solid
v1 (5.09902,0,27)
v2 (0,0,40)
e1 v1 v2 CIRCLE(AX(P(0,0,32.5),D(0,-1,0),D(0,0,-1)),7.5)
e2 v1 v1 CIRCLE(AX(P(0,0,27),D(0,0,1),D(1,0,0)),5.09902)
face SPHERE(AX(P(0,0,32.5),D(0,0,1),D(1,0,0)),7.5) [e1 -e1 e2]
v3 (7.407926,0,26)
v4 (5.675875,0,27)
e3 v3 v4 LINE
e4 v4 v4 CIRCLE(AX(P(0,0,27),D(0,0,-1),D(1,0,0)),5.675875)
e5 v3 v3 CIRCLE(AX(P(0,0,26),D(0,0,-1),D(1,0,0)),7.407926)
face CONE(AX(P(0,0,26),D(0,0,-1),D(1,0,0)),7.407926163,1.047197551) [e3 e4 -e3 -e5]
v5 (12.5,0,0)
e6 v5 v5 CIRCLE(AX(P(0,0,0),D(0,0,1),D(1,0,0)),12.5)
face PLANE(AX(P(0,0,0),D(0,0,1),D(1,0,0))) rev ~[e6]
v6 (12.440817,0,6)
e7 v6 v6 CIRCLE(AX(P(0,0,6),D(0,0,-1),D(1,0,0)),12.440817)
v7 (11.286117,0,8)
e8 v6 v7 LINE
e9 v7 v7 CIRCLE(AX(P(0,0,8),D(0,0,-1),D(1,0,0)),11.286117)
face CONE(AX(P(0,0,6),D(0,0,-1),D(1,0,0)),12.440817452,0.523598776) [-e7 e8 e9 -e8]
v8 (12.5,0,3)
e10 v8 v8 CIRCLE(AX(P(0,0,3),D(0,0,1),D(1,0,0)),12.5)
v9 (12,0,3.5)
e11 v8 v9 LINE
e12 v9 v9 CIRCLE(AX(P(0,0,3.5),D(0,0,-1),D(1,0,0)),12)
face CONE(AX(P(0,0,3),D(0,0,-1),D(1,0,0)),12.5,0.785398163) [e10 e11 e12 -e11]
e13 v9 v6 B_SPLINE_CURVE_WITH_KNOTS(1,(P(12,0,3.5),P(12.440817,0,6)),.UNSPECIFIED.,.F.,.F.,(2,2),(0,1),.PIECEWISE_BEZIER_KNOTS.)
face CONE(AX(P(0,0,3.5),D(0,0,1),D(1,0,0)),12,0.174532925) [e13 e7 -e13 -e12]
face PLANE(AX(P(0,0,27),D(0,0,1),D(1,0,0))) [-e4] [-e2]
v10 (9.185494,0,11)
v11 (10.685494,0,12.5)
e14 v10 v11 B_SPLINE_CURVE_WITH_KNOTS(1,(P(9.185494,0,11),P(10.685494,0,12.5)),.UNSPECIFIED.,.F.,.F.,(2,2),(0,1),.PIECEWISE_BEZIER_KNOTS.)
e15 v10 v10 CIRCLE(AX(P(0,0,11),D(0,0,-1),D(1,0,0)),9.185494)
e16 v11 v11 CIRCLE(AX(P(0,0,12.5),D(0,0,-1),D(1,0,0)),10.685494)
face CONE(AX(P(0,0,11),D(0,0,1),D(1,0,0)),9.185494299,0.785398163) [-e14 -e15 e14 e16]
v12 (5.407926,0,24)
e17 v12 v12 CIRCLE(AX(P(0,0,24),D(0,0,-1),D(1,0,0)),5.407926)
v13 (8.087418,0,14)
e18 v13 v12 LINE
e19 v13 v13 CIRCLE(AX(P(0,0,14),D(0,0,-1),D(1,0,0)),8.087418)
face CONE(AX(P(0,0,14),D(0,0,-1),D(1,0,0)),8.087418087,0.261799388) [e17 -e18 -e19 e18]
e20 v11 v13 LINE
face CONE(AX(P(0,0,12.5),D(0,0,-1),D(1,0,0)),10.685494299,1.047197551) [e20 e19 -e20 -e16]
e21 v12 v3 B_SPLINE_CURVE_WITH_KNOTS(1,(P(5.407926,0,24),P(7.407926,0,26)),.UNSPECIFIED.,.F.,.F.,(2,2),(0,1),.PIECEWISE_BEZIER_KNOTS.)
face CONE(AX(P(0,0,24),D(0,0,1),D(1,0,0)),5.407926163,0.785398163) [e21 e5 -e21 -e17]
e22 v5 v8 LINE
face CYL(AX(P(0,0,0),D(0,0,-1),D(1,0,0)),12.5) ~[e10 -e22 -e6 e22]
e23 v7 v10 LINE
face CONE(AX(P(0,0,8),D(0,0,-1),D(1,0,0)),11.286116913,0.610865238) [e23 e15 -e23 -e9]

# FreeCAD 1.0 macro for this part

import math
import FreeCAD as App
import Part
import Sketcher

V = App.Vector

doc = App.newDocument("Part")
body = doc.addObject("PartDesign::Body", "Body")

sketch1 = doc.addObject("Sketcher::SketchObject", "Sketch")
body.addObject(sketch1)
sketch1.AttachmentSupport = (doc.XY_Plane, [""])
sketch1.MapMode = "FlatFace"
sketch1.addGeometry(Part.Circle(V(0, 0, 0), V(0, 0, 1), 12), False)
sketch1.addConstraint([
    Sketcher.Constraint("Coincident", 0, 3, -1, 1),
    Sketcher.Constraint("Diameter", 0, 25.0),
])
pad1 = doc.addObject("PartDesign::Pad", "Pad")
body.addObject(pad1)
pad1.Profile = sketch1
pad1.Length = 3

sketch2 = doc.addObject("Sketcher::SketchObject", "Sketch001")
body.addObject(sketch2)
sketch2.AttachmentSupport = (doc.XY_Plane, [""])
sketch2.MapMode = "FlatFace"
sketch2.AttachmentOffset = App.Placement(V(0, 0, 3), App.Rotation())
sketch2.addGeometry(Part.Circle(V(0, 0, 0), V(0, 0, 1), 12), False)
sketch2.addConstraint([
    Sketcher.Constraint("Coincident", 0, 3, -1, 1),
    Sketcher.Constraint("Diameter", 0, 25.0),
])
pad2 = doc.addObject("PartDesign::Pad", "Pad001")
body.addObject(pad2)
pad2.Profile = sketch2
pad2.Length = 0.5
pad2.TaperAngle = -45

sketch3 = doc.addObject("Sketcher::SketchObject", "Sketch002")
body.addObject(sketch3)
sketch3.AttachmentSupport = (doc.XY_Plane, [""])
sketch3.MapMode = "FlatFace"
sketch3.AttachmentOffset = App.Placement(V(0, 0, 3.5), App.Rotation())
sketch3.addGeometry(Part.Circle(V(0, 0, 0), V(0, 0, 1), 12), False)
sketch3.addConstraint([
    Sketcher.Constraint("Coincident", 0, 3, -1, 1),
    Sketcher.Constraint("Diameter", 0, 24.0),
])
pad3 = doc.addObject("PartDesign::Pad", "Pad002")
body.addObject(pad3)
pad3.Profile = sketch3
pad3.Length = 2.5
pad3.TaperAngle = 10

sketch4 = doc.addObject("Sketcher::SketchObject", "Sketch003")
body.addObject(sketch4)
sketch4.AttachmentSupport = (doc.XY_Plane, [""])
sketch4.MapMode = "FlatFace"
sketch4.AttachmentOffset = App.Placement(V(0, 0, 6), App.Rotation())
sketch4.addGeometry(Part.Circle(V(0, 0, 0), V(0, 0, 1), 12), False)
sketch4.addConstraint([
    Sketcher.Constraint("Coincident", 0, 3, -1, 1),
    Sketcher.Constraint("Diameter", 0, 24.881635),
])
pad4 = doc.addObject("PartDesign::Pad", "Pad003")
body.addObject(pad4)
pad4.Profile = sketch4
pad4.Length = 2
pad4.TaperAngle = -30

sketch5 = doc.addObject("Sketcher::SketchObject", "Sketch004")
body.addObject(sketch5)
sketch5.AttachmentSupport = (doc.XY_Plane, [""])
sketch5.MapMode = "FlatFace"
sketch5.AttachmentOffset = App.Placement(V(0, 0, 8), App.Rotation())
sketch5.addGeometry(Part.Circle(V(0, 0, 0), V(0, 0, 1), 11), False)
sketch5.addConstraint([
    Sketcher.Constraint("Coincident", 0, 3, -1, 1),
    Sketcher.Constraint("Diameter", 0, 22.572234),
])
pad5 = doc.addObject("PartDesign::Pad", "Pad004")
body.addObject(pad5)
pad5.Profile = sketch5
pad5.Length = 3
pad5.TaperAngle = -35

sketch6 = doc.addObject("Sketcher::SketchObject", "Sketch005")
body.addObject(sketch6)
sketch6.AttachmentSupport = (doc.XY_Plane, [""])
sketch6.MapMode = "FlatFace"
sketch6.AttachmentOffset = App.Placement(V(0, 0, 11), App.Rotation())
sketch6.addGeometry(Part.Circle(V(0, 0, 0), V(0, 0, 1), 9), False)
sketch6.addConstraint([
    Sketcher.Constraint("Coincident", 0, 3, -1, 1),
    Sketcher.Constraint("Diameter", 0, 18.370989),
])
pad6 = doc.addObject("PartDesign::Pad", "Pad005")
body.addObject(pad6)
pad6.Profile = sketch6
pad6.Length = 1.5
pad6.TaperAngle = 45

sketch7 = doc.addObject("Sketcher::SketchObject", "Sketch006")
body.addObject(sketch7)
sketch7.AttachmentSupport = (doc.XY_Plane, [""])
sketch7.MapMode = "FlatFace"
sketch7.AttachmentOffset = App.Placement(V(0, 0, 12.5), App.Rotation())
sketch7.addGeometry(Part.Circle(V(0, 0, 0), V(0, 0, 1), 11), False)
sketch7.addConstraint([
    Sketcher.Constraint("Coincident", 0, 3, -1, 1),
    Sketcher.Constraint("Diameter", 0, 21.370989),
])
pad7 = doc.addObject("PartDesign::Pad", "Pad006")
body.addObject(pad7)
pad7.Profile = sketch7
pad7.Length = 1.5
pad7.TaperAngle = -60

sketch8 = doc.addObject("Sketcher::SketchObject", "Sketch007")
body.addObject(sketch8)
sketch8.AttachmentSupport = (doc.XY_Plane, [""])
sketch8.MapMode = "FlatFace"
sketch8.AttachmentOffset = App.Placement(V(0, 0, 14), App.Rotation())
sketch8.addGeometry(Part.Circle(V(0, 0, 0), V(0, 0, 1), 8), False)
sketch8.addConstraint([
    Sketcher.Constraint("Coincident", 0, 3, -1, 1),
    Sketcher.Constraint("Diameter", 0, 16.174836),
])
pad8 = doc.addObject("PartDesign::Pad", "Pad007")
body.addObject(pad8)
pad8.Profile = sketch8
pad8.Length = 10
pad8.TaperAngle = -15

sketch9 = doc.addObject("Sketcher::SketchObject", "Sketch008")
body.addObject(sketch9)
sketch9.AttachmentSupport = (doc.XY_Plane, [""])
sketch9.MapMode = "FlatFace"
sketch9.AttachmentOffset = App.Placement(V(0, 0, 24), App.Rotation())
sketch9.addGeometry(Part.Circle(V(0, 0, 0), V(0, 0, 1), 5), False)
sketch9.addConstraint([
    Sketcher.Constraint("Coincident", 0, 3, -1, 1),
    Sketcher.Constraint("Diameter", 0, 10.815852),
])
pad9 = doc.addObject("PartDesign::Pad", "Pad008")
body.addObject(pad9)
pad9.Profile = sketch9
pad9.Length = 2
pad9.TaperAngle = 45

sketch10 = doc.addObject("Sketcher::SketchObject", "Sketch009")
body.addObject(sketch10)
sketch10.AttachmentSupport = (doc.XY_Plane, [""])
sketch10.MapMode = "FlatFace"
sketch10.AttachmentOffset = App.Placement(V(0, 0, 26), App.Rotation())
sketch10.addGeometry(Part.Circle(V(0, 0, 0), V(0, 0, 1), 7), False)
sketch10.addConstraint([
    Sketcher.Constraint("Coincident", 0, 3, -1, 1),
    Sketcher.Constraint("Diameter", 0, 14.815852),
])
pad10 = doc.addObject("PartDesign::Pad", "Pad009")
body.addObject(pad10)
pad10.Profile = sketch10
pad10.Length = 1
pad10.TaperAngle = -60

sketch11 = doc.addObject("Sketcher::SketchObject", "Sketch010")
body.addObject(sketch11)
sketch11.AttachmentSupport = (doc.XZ_Plane, [""])
sketch11.MapMode = "FlatFace"
sketch11.addGeometry([
    Part.ArcOfCircle(Part.Circle(V(0, 32, 0), V(0, 0, 1), 8), math.radians(-90), math.radians(90)),
    Part.LineSegment(V(0, 40, 0), V(0, 25, 0)),
], False)
sketch11.addConstraint([
    Sketcher.Constraint("Coincident", 0, 1, 1, 2),
    Sketcher.Constraint("Coincident", 1, 1, 0, 2),
    Sketcher.Constraint("Vertical", 1),
    Sketcher.Constraint("PointOnObject", 0, 3, -2),
    Sketcher.Constraint("PointOnObject", 0, 1, -2),
    Sketcher.Constraint("Radius", 0, 7.5),
    Sketcher.Constraint("DistanceY", -1, 1, 0, 1, 25.0),
])
revolution = doc.addObject("PartDesign::Revolution", "Revolution")
body.addObject(revolution)
revolution.Profile = sketch11
revolution.ReferenceAxis = (sketch11, ["V_Axis"])
revolution.Angle = 360

doc.recompute()
